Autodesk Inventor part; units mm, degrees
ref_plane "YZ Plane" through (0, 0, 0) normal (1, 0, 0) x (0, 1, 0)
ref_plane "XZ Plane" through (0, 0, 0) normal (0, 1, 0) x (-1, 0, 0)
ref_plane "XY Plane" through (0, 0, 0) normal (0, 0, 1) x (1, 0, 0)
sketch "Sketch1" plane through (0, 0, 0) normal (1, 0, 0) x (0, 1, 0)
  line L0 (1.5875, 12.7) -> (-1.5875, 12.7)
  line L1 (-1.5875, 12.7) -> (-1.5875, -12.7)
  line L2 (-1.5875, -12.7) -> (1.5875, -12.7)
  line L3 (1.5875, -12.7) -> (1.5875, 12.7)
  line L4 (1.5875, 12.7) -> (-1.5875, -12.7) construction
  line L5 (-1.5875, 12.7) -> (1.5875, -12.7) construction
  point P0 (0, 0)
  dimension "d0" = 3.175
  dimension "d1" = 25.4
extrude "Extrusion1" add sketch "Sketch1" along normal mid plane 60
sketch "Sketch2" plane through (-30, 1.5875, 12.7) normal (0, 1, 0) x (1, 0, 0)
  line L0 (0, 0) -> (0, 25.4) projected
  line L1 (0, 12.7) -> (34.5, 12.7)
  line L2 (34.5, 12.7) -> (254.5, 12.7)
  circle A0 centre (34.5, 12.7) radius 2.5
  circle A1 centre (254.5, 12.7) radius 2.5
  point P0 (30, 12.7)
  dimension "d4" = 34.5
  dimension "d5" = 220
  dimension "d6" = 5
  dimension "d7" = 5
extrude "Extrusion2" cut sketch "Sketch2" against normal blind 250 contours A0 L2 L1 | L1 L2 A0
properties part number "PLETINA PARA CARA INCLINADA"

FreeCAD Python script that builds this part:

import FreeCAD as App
import Part
import Sketcher

V = App.Vector
Q = App.Units.Quantity


def add_polygon(sketch, points):
    """Adds a closed chain of lines whose ends are joined by coincident constraints."""
    first, n = sketch.GeometryCount, len(points)
    for a, b in zip(points, points[1:] + points[:1]):
        sketch.addGeometry(Part.LineSegment(App.Vector(*a, 0), App.Vector(*b, 0)), False)
    for i in range(n):
        sketch.addConstraint(Sketcher.Constraint("Coincident", first + i, 2, first + (i + 1) % n, 1))

doc = App.newDocument("Part")
body = doc.addObject("PartDesign::Body", "Body")

sketch1 = body.newObject("Sketcher::SketchObject", "Sketch")
sketch1.AttachmentSupport = (doc.getObject("YZ_Plane"), [""])
sketch1.MapMode = "FlatFace"
add_polygon(sketch1, [(1.6, -12.7), (1.6, 12.7), (-1.6, 12.7), (-1.6, -12.7)])
sketch1.addConstraint(Sketcher.Constraint("Vertical", 0))
sketch1.addConstraint(Sketcher.Constraint("Horizontal", 1))
sketch1.addConstraint(Sketcher.Constraint("Vertical", 2))
sketch1.addConstraint(Sketcher.Constraint("Horizontal", 3))
sketch1.addConstraint(Sketcher.Constraint("Symmetric", 0, 2, 2, 2, -1, 1))
sketch1.addConstraint(Sketcher.Constraint("DistanceY", 0, 1, 0, 2, Q("25.4 mm")))
sketch1.addConstraint(Sketcher.Constraint("DistanceX", 1, 2, 1, 1, Q("3.175 mm")))
pad1 = body.newObject("PartDesign::Pad", "Pad")
pad1.Profile = sketch1
pad1.Length = 60
pad1.Midplane = True

sketch2 = body.newObject("Sketcher::SketchObject", "Sketch001")
sketch2.AttachmentSupport = (doc.getObject("XZ_Plane"), [""])
sketch2.MapMode = "FlatFace"
sketch2.AttachmentOffset = App.Placement(V(0, 0, -1.5875), App.Rotation())
sketch2.addGeometry(Part.Circle(V(4.5, 0, 0), V(0, 0, 1), 2.5), False)
sketch2.addConstraint(Sketcher.Constraint("PointOnObject", 0, 3, -1))
sketch2.addConstraint(Sketcher.Constraint("Diameter", 0, Q("5 mm")))
sketch2.addConstraint(Sketcher.Constraint("DistanceX", -1, 1, 0, 3, Q("4.5 mm")))
pocket1 = body.newObject("PartDesign::Pocket", "Pocket")
pocket1.Profile = sketch2
pocket1.Length = 250
pocket1.Reversed = True

doc.recompute()
